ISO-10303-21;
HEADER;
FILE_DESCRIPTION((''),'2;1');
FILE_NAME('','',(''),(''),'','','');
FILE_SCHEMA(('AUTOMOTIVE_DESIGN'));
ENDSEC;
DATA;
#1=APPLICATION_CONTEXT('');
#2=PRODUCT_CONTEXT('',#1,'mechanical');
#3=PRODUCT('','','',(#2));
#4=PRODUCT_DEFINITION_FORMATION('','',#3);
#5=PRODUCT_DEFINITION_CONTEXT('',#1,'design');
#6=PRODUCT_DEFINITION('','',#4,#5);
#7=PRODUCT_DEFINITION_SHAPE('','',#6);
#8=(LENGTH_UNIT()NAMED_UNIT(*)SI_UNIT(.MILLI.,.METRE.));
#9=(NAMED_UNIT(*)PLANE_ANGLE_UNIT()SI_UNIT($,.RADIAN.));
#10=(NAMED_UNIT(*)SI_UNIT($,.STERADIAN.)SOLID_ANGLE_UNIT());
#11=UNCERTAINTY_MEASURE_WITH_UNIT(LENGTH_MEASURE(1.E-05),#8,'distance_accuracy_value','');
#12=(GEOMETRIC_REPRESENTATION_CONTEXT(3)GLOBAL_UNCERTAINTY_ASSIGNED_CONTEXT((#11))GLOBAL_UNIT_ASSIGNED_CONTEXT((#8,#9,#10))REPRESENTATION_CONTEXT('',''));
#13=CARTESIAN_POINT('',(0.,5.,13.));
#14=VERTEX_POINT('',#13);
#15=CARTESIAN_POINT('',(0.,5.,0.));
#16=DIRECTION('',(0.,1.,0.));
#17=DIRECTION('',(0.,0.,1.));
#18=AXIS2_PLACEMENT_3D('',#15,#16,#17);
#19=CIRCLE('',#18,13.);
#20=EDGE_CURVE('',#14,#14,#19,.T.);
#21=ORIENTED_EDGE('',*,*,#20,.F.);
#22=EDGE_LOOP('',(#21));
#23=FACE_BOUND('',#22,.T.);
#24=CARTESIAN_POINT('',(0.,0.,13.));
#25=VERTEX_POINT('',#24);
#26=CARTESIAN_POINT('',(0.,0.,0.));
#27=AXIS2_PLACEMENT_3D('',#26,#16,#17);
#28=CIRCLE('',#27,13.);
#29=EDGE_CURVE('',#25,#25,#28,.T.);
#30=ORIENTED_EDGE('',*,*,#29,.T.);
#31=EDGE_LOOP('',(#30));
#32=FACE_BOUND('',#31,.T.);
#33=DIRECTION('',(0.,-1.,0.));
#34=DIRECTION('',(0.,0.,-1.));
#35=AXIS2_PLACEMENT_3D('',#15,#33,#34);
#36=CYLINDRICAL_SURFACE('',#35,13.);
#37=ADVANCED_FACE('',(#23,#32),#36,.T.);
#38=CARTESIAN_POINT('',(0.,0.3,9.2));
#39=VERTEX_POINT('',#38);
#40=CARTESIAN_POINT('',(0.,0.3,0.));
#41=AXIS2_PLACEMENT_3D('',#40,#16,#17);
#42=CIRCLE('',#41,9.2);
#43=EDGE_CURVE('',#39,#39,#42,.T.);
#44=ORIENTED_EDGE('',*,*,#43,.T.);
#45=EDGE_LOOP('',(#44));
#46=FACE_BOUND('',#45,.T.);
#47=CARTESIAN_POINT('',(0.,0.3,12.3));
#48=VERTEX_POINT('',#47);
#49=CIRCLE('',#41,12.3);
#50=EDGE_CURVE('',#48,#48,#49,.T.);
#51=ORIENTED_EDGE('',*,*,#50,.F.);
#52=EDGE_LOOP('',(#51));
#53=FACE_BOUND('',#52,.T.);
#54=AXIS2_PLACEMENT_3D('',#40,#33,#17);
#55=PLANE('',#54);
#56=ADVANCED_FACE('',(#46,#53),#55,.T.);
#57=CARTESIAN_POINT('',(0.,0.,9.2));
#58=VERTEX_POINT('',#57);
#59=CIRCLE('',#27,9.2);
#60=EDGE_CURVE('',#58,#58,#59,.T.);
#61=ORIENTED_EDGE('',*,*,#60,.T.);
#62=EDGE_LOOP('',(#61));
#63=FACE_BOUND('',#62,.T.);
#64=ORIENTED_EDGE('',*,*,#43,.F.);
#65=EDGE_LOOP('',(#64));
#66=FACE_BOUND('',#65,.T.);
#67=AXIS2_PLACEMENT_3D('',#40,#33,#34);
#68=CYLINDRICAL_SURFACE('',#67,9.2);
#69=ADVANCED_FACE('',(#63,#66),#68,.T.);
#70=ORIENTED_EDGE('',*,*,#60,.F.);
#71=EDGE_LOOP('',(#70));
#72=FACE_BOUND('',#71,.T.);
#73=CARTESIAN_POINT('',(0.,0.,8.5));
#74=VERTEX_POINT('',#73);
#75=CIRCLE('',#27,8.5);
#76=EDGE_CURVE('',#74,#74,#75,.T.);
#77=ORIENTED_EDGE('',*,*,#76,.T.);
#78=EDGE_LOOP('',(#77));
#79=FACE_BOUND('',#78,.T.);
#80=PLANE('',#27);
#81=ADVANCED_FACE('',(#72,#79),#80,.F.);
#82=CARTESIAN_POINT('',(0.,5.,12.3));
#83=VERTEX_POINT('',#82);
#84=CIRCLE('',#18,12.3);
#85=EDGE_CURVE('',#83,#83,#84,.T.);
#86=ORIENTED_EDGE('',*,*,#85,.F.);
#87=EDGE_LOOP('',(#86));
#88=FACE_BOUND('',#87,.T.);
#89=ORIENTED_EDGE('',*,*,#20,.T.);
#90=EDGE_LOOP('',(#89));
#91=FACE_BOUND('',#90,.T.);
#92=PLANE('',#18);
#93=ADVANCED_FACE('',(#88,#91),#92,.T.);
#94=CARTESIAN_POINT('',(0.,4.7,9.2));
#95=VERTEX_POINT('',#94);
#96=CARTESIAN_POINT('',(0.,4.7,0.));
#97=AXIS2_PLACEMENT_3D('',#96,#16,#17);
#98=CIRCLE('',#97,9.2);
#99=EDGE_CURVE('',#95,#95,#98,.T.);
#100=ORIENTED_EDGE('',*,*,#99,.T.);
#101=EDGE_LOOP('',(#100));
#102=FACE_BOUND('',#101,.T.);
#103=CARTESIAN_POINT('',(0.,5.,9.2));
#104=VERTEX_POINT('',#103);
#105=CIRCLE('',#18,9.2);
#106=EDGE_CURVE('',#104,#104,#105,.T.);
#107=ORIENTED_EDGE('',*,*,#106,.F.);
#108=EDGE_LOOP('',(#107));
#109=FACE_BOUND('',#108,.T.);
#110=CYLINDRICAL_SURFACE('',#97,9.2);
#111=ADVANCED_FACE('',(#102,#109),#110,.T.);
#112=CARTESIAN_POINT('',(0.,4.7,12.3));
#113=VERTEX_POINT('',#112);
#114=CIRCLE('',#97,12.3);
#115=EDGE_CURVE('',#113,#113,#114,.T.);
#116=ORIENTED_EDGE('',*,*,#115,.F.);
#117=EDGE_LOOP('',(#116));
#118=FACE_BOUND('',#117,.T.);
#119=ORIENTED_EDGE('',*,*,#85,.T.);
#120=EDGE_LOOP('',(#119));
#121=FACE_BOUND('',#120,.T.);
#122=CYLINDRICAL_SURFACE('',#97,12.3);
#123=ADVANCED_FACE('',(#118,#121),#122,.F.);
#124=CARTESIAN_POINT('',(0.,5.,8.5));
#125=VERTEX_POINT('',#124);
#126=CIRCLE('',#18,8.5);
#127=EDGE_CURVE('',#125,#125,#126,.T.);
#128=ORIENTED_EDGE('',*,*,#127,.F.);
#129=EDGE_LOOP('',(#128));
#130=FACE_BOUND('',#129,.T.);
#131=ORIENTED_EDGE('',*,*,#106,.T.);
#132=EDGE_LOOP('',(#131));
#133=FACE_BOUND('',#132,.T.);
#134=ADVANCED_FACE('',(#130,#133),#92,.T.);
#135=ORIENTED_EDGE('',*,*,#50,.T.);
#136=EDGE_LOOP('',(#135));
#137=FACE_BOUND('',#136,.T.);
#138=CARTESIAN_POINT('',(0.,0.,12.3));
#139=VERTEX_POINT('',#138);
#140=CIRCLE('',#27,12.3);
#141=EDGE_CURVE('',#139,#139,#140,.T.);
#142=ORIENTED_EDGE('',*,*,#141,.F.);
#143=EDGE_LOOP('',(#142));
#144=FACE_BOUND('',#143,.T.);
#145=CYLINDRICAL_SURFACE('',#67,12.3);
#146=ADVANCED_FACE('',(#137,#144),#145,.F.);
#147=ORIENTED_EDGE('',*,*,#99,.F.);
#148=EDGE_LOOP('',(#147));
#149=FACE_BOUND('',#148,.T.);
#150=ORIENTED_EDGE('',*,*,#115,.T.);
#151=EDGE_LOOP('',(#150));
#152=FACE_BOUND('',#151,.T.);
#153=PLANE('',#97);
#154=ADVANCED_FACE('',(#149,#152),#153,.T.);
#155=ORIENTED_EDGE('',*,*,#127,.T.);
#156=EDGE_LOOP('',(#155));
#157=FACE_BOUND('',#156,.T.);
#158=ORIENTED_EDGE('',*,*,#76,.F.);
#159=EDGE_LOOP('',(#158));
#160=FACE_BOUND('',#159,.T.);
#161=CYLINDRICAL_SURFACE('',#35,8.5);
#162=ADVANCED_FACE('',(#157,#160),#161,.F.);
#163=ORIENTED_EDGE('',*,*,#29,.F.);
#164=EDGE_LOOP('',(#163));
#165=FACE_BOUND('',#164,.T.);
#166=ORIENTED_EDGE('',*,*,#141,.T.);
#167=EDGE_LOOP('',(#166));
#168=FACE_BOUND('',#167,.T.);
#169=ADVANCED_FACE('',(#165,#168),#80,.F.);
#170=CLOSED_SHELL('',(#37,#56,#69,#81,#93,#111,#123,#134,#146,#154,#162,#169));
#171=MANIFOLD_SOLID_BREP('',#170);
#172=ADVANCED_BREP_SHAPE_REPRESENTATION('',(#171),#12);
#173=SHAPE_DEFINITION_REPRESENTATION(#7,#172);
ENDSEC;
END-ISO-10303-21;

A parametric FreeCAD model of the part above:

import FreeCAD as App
import Part
import Sketcher

doc = App.newDocument("Part")
params = doc.addObject("Spreadsheet::Sheet", "Params")
for row, (alias, value) in enumerate([
    ("sketch1_diameter", "26 mm"),
    ("sketch1_diameter2", "17 mm"),
    ("pad1_length", "5 mm"),
    ("sketch2_diameter", "24.6 mm"),
    ("sketch2_diameter2", "18.4 mm"),
    ("pocket1_length", "0.3 mm"),
], start=1):
    params.set(f"A{row}", alias)
    params.set(f"B{row}", "=" + value)
    params.setAlias(f"B{row}", alias)

body = doc.addObject("PartDesign::Body", "Body")

sketch1 = body.newObject("Sketcher::SketchObject", "Sketch")
sketch1.AttachmentSupport = (doc.getObject("XZ_Plane"), [""])
sketch1.MapMode = "FlatFace"
sketch1.addGeometry([
    Part.Circle(App.Vector(0, 0, 0), App.Vector(0, 0, 1), 13),
    Part.Circle(App.Vector(0, 0, 0), App.Vector(0, 0, 1), 8),
], False)
sketch1.addConstraint([
    Sketcher.Constraint("Coincident", 0, 3, -1, 1),
    Sketcher.Constraint("Coincident", 1, 3, -1, 1),
    Sketcher.Constraint("Diameter", 0, 26.0),
    Sketcher.Constraint("Diameter", 1, 17.0),
])
sketch1.setExpression("Constraints[2]", "Params.sketch1_diameter")
sketch1.setExpression("Constraints[3]", "Params.sketch1_diameter2")
pad1 = body.newObject("PartDesign::Pad", "Pad")
pad1.Profile = sketch1
pad1.setExpression("Length", "Params.pad1_length")
pad1.Reversed = True

sketch2 = body.newObject("Sketcher::SketchObject", "Sketch001")
sketch2.AttachmentSupport = (doc.getObject("XZ_Plane"), [""])
sketch2.MapMode = "FlatFace"
sketch2.AttachmentOffset = App.Placement(App.Vector(0, 0, -5), App.Rotation())
sketch2.addGeometry([
    Part.Circle(App.Vector(0, 0, 0), App.Vector(0, 0, 1), 12),
    Part.Circle(App.Vector(0, 0, 0), App.Vector(0, 0, 1), 9),
], False)
sketch2.addConstraint([
    Sketcher.Constraint("Coincident", 0, 3, -1, 1),
    Sketcher.Constraint("Coincident", 1, 3, -1, 1),
    Sketcher.Constraint("Diameter", 0, 24.6),
    Sketcher.Constraint("Diameter", 1, 18.4),
])
sketch2.setExpression("Constraints[2]", "Params.sketch2_diameter")
sketch2.setExpression("Constraints[3]", "Params.sketch2_diameter2")
pocket1 = body.newObject("PartDesign::Pocket", "Pocket")
pocket1.Profile = sketch2
pocket1.setExpression("Length", "Params.pocket1_length")
pocket1.Reversed = True
doc.recompute()

datumplane = body.newObject("PartDesign::Plane", "DatumPlane")
datumplane.AttachmentSupport = (doc.getObject("XZ_Plane"), [""])
datumplane.MapMode = "FlatFace"
datumplane.AttachmentOffset = App.Placement(App.Vector(0, 0, -2.5), App.Rotation())
mirrored = body.newObject("PartDesign::Mirrored", "Mirrored")
mirrored.Originals = [pocket1]
mirrored.MirrorPlane = (datumplane, [""])
body.Tip = mirrored

doc.recompute()
